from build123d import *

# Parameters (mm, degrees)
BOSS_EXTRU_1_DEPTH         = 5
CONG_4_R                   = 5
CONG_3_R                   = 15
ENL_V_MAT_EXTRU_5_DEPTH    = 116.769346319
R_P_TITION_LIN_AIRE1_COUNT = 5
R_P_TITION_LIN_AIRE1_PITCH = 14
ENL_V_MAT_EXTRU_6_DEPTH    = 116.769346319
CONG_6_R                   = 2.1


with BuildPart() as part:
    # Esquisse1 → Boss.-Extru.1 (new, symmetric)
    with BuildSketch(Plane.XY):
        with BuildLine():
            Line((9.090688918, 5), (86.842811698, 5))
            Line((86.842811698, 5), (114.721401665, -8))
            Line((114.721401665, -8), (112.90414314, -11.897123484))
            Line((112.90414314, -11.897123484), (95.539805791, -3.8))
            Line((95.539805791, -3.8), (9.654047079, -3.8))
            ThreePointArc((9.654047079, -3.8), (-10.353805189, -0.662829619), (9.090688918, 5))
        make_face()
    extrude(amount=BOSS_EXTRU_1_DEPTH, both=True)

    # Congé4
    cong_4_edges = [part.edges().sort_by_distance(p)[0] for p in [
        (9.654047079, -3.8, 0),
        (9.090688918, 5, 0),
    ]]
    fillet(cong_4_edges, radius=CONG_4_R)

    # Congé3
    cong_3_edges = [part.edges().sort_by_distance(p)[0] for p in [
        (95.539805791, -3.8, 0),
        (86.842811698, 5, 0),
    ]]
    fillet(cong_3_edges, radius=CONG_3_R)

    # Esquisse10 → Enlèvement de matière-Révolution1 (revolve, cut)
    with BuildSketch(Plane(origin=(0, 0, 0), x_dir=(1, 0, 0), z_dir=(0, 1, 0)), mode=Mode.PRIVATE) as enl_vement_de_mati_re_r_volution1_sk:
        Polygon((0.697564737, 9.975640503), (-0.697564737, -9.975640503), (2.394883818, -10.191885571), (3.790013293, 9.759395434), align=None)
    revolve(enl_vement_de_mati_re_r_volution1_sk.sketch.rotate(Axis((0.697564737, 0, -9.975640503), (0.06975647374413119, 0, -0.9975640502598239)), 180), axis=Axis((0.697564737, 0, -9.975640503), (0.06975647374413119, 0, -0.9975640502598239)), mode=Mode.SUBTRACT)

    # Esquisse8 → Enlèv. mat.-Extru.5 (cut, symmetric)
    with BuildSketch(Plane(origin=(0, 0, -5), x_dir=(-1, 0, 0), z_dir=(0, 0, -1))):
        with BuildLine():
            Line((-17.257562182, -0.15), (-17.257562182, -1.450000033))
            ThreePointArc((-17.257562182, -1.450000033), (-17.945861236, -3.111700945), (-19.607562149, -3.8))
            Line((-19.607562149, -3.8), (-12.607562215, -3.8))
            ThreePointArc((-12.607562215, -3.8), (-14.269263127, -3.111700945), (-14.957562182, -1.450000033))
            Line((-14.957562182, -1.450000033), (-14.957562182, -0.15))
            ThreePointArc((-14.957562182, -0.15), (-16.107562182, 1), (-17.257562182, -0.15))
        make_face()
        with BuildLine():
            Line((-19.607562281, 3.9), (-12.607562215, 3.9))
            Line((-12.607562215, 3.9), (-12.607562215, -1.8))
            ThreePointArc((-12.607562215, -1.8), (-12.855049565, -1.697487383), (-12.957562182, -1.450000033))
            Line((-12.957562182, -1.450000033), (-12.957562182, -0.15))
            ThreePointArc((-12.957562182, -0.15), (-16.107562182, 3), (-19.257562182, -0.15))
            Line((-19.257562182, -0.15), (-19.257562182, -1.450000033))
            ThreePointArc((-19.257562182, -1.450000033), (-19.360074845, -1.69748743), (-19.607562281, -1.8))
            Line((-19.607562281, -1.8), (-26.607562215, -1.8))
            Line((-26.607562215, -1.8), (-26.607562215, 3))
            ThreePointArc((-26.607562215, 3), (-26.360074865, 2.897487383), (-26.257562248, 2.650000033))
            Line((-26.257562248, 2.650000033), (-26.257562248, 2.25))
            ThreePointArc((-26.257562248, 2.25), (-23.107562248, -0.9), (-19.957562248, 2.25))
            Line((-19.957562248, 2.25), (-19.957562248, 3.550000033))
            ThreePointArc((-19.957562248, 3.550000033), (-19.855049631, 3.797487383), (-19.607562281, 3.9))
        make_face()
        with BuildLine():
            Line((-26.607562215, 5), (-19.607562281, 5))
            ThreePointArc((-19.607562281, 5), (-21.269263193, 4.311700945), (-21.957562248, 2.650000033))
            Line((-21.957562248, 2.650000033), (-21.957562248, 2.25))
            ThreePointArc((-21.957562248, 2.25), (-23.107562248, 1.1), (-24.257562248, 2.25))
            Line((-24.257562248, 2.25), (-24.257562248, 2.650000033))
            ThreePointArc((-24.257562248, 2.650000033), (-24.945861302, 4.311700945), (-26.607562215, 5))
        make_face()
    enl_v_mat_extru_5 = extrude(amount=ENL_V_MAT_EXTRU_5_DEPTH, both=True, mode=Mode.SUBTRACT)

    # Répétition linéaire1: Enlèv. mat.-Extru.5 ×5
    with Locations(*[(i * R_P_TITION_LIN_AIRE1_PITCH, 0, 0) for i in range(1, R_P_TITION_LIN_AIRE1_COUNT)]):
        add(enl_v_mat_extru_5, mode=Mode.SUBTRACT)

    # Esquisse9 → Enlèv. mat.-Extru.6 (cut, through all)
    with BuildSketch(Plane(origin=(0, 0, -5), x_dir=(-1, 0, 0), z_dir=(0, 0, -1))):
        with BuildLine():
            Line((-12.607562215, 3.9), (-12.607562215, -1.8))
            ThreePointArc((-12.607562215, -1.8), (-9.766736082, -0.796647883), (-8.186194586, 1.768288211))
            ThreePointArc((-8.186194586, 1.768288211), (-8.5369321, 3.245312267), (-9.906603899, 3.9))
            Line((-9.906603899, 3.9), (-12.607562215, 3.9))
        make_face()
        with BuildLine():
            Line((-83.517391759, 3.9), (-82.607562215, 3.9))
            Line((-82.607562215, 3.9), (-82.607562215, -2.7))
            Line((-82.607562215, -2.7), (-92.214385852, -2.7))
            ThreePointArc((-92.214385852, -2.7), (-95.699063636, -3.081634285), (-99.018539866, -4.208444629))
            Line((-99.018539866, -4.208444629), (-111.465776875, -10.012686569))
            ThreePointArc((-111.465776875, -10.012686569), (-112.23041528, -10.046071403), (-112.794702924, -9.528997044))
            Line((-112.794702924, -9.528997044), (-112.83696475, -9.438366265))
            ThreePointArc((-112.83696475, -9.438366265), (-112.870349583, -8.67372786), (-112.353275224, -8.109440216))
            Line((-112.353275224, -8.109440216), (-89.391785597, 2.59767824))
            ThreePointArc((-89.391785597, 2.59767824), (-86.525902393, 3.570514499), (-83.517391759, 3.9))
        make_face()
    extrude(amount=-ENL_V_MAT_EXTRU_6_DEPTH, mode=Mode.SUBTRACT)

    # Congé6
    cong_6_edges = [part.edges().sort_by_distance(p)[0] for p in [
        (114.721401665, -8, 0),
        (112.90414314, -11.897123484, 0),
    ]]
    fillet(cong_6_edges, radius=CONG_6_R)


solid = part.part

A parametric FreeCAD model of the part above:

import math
import FreeCAD as App
import Part
import Sketcher
Q = App.Units.Quantity


def edges_at(feature, points):
    """Names of the edges that pass closest to the given points."""
    edges = feature.Shape.Edges
    near = lambda p: min(range(len(edges)), key=lambda i: edges[i].distToShape(Part.Vertex(*p))[0])
    return sorted({f"Edge{near(p) + 1}" for p in points})

doc = App.newDocument("Part")
body = doc.addObject("PartDesign::Body", "Body")

# Sketch on XY plane
sketch1 = body.newObject("Sketcher::SketchObject", "Sketch")
sketch1.AttachmentSupport = (doc.getObject("XY_Plane"), [""])
sketch1.MapMode = "FlatFace"
sketch1.addGeometry([
    Part.LineSegment(App.Vector(86.8, 5, 0), App.Vector(9.1, 5, 0)),  # 0
    Part.ArcOfCircle(Part.Circle(App.Vector(0, 0, 0), App.Vector(0, 0, 1), 10.4), math.radians(29), math.radians(339)),  # 1
    Part.LineSegment(App.Vector(9.7, -3.8, 0), App.Vector(95.5, -3.8, 0)),  # 2
    Part.LineSegment(App.Vector(95.5, -3.8, 0), App.Vector(112.9, -11.9, 0)),  # 3
    Part.LineSegment(App.Vector(112.9, -11.9, 0), App.Vector(114.7, -8, 0)),  # 4
    Part.LineSegment(App.Vector(114.7, -8, 0), App.Vector(86.8, 5, 0)),  # 5
], False)
sketch1.addConstraint([
    Sketcher.Constraint("Coincident", 0, 2, 1, 1),
    Sketcher.Constraint("Coincident", 1, 2, 2, 1),
    Sketcher.Constraint("Coincident", 2, 2, 3, 1),
    Sketcher.Constraint("Coincident", 3, 2, 4, 1),
    Sketcher.Constraint("Coincident", 4, 2, 5, 1),
    Sketcher.Constraint("Coincident", 5, 2, 0, 1),
    Sketcher.Constraint("Horizontal", 0),
    Sketcher.Constraint("Horizontal", 2),
    Sketcher.Constraint("Coincident", 1, 3, -1, 1),
    Sketcher.Constraint("Perpendicular", 3, 4),
    Sketcher.Constraint("Perpendicular", 4, 5),
    Sketcher.Constraint("Angle", 3, Q("-25 deg")),
    Sketcher.Constraint("DistanceY", -1, 1, 0, 2, 5.0),
    Sketcher.Constraint("DistanceY", 4, 2, -1, 1, 8.0),
    Sketcher.Constraint("Radius", 1, 10.375),
    Sketcher.Constraint("Distance", 4, 4.3),
    Sketcher.Constraint("DistanceY", 1, 2, -1, 1, 3.8),
    Sketcher.Constraint("DistanceX", 2, 1, 2, 2, 85.885759),
])
pad1 = body.newObject("PartDesign::Pad", "Pad")
pad1.Profile = sketch1
pad1.Length = 10
pad1.Midplane = True
doc.recompute()

fillet = body.newObject("PartDesign::Fillet", "Fillet")
fillet.Base = (pad1, edges_at(pad1, [(9.654, -3.8, 0), (9.091, 5, 0)]))
fillet.Radius = 5
doc.recompute()

fillet2 = body.newObject("PartDesign::Fillet", "Fillet001")
fillet2.Base = (fillet, edges_at(fillet, [(95.54, -3.8, 0), (86.843, 5, 0)]))
fillet2.Radius = 15

# Sketch on XZ plane
sketch2 = body.newObject("Sketcher::SketchObject", "Sketch001")
sketch2.AttachmentSupport = (doc.getObject("XZ_Plane"), [""])
sketch2.MapMode = "FlatFace"
sketch2.addGeometry([
    Part.LineSegment(App.Vector(0.7, -10, 0), App.Vector(-0.7, 10, 0)),
    Part.LineSegment(App.Vector(-0.7, 10, 0), App.Vector(2.4, 10.2, 0)),
    Part.LineSegment(App.Vector(2.4, 10.2, 0), App.Vector(3.8, -9.8, 0)),
    Part.LineSegment(App.Vector(3.8, -9.8, 0), App.Vector(0.7, -10, 0)),
], False)
sketch2.addGeometry(Part.LineSegment(App.Vector(-0.7, 10, 0), App.Vector(0.7, -10, 0)), True)  # axis
sketch2.addConstraint([
    Sketcher.Constraint("Coincident", 0, 2, 1, 1),
    Sketcher.Constraint("Coincident", 1, 2, 2, 1),
    Sketcher.Constraint("Coincident", 2, 2, 3, 1),
    Sketcher.Constraint("Coincident", 3, 2, 0, 1),
    Sketcher.Constraint("Coincident", 4, 1, 0, 2),
    Sketcher.Constraint("Coincident", 4, 2, 3, 2),
    Sketcher.Constraint("Symmetric", 0, 2, 3, 2, -1, 1),
    Sketcher.Constraint("Perpendicular", 0, 1),
    Sketcher.Constraint("Perpendicular", 1, 2),
    Sketcher.Constraint("Perpendicular", 2, 3),
    Sketcher.Constraint("Angle", 0, Q("94 deg")),
    Sketcher.Constraint("Distance", 0, 20.0),
    Sketcher.Constraint("Distance", 1, 3.1),
])
groove = body.newObject("PartDesign::Groove", "Groove")
groove.Profile = sketch2
groove.ReferenceAxis = (sketch2, ["Axis0"])
groove.Angle = 360

# Sketch on XY plane
sketch3 = body.newObject("Sketcher::SketchObject", "Sketch002")
sketch3.AttachmentSupport = (doc.getObject("XY_Plane"), [""])
sketch3.MapMode = "FlatFace"
sketch3.AttachmentOffset = App.Placement(App.Vector(0, 0, -5), App.Rotation())
sketch3.addGeometry([
    Part.LineSegment(App.Vector(17.26, -0.15, 0), App.Vector(17.26, -1.45, 0)),  # 0
    Part.ArcOfCircle(Part.Circle(App.Vector(19.61, -1.45, 0), App.Vector(0, 0, 1), 2.35), math.radians(180), math.radians(270)),  # 1
    Part.LineSegment(App.Vector(19.61, -3.8, 0), App.Vector(12.61, -3.8, 0)),  # 2
    Part.ArcOfCircle(Part.Circle(App.Vector(12.61, -1.45, 0), App.Vector(0, 0, 1), 2.35), math.radians(-90), math.radians(0)),  # 3
    Part.LineSegment(App.Vector(14.96, -1.45, 0), App.Vector(14.96, -0.15, 0)),  # 4
    Part.ArcOfCircle(Part.Circle(App.Vector(16.11, -0.15, 0), App.Vector(0, 0, 1), 1.15), math.radians(0), math.radians(180)),  # 5
    Part.LineSegment(App.Vector(12.61, 3.9, 0), App.Vector(19.61, 3.9, 0)),  # 6
    Part.ArcOfCircle(Part.Circle(App.Vector(19.61, 3.55, 0), App.Vector(0, 0, 1), 0.35), math.radians(0), math.radians(90)),  # 7
    Part.LineSegment(App.Vector(19.96, 3.55, 0), App.Vector(19.96, 2.25, 0)),  # 8
    Part.ArcOfCircle(Part.Circle(App.Vector(23.11, 2.25, 0), App.Vector(0, 0, 1), 3.15), math.radians(180), math.radians(360)),  # 9
    Part.LineSegment(App.Vector(26.26, 2.25, 0), App.Vector(26.26, 2.65, 0)),  # 10
    Part.ArcOfCircle(Part.Circle(App.Vector(26.61, 2.65, 0), App.Vector(0, 0, 1), 0.35), math.radians(90), math.radians(180)),  # 11
    Part.LineSegment(App.Vector(26.61, 3, 0), App.Vector(26.61, -1.8, 0)),  # 12
    Part.LineSegment(App.Vector(26.61, -1.8, 0), App.Vector(19.61, -1.8, 0)),  # 13
    Part.ArcOfCircle(Part.Circle(App.Vector(19.61, -1.45, 0), App.Vector(0, 0, 1), 0.35), math.radians(180), math.radians(270)),  # 14
    Part.LineSegment(App.Vector(19.26, -1.45, 0), App.Vector(19.26, -0.15, 0)),  # 15
    Part.ArcOfCircle(Part.Circle(App.Vector(16.11, -0.15, 0), App.Vector(0, 0, 1), 3.15), math.radians(0), math.radians(180)),  # 16
    Part.LineSegment(App.Vector(12.96, -0.15, 0), App.Vector(12.96, -1.45, 0)),  # 17
    Part.ArcOfCircle(Part.Circle(App.Vector(12.61, -1.45, 0), App.Vector(0, 0, 1), 0.35), math.radians(-90), math.radians(0)),  # 18
    Part.LineSegment(App.Vector(12.61, -1.8, 0), App.Vector(12.61, 3.9, 0)),  # 19
    Part.LineSegment(App.Vector(19.61, 5, 0), App.Vector(26.61, 5, 0)),  # 20
    Part.ArcOfCircle(Part.Circle(App.Vector(26.61, 2.65, 0), App.Vector(0, 0, 1), 2.35), math.radians(90), math.radians(180)),  # 21
    Part.LineSegment(App.Vector(24.26, 2.65, 0), App.Vector(24.26, 2.25, 0)),  # 22
    Part.ArcOfCircle(Part.Circle(App.Vector(23.11, 2.25, 0), App.Vector(0, 0, 1), 1.15), math.radians(180), math.radians(360)),  # 23
    Part.LineSegment(App.Vector(21.96, 2.25, 0), App.Vector(21.96, 2.65, 0)),  # 24
    Part.ArcOfCircle(Part.Circle(App.Vector(19.61, 2.65, 0), App.Vector(0, 0, 1), 2.35), math.radians(0), math.radians(90)),  # 25
], False)
sketch3.addConstraint([
    Sketcher.Constraint("Tangent", 0, 2, 1, 1),
    Sketcher.Constraint("Tangent", 1, 2, 2, 1),
    Sketcher.Constraint("Tangent", 2, 2, 3, 1),
    Sketcher.Constraint("Tangent", 3, 2, 4, 1),
    Sketcher.Constraint("Tangent", 4, 2, 5, 2),
    Sketcher.Constraint("Tangent", 5, 1, 0, 1),
    Sketcher.Constraint("Tangent", 6, 2, 7, 2),
    Sketcher.Constraint("Tangent", 7, 1, 8, 1),
    Sketcher.Constraint("Tangent", 8, 2, 9, 1),
    Sketcher.Constraint("Tangent", 9, 2, 10, 1),
    Sketcher.Constraint("Tangent", 10, 2, 11, 2),
    Sketcher.Constraint("Coincident", 11, 1, 12, 1),
    Sketcher.Constraint("Coincident", 12, 2, 13, 1),
    Sketcher.Constraint("Tangent", 13, 2, 14, 2),
    Sketcher.Constraint("Tangent", 14, 1, 15, 1),
    Sketcher.Constraint("Tangent", 15, 2, 16, 1),
    Sketcher.Constraint("Tangent", 16, 2, 17, 1),
    Sketcher.Constraint("Tangent", 17, 2, 18, 2),
    Sketcher.Constraint("Coincident", 18, 1, 19, 1),
    Sketcher.Constraint("Coincident", 19, 2, 6, 1),
    Sketcher.Constraint("Tangent", 20, 2, 21, 1),
    Sketcher.Constraint("Tangent", 21, 2, 22, 1),
    Sketcher.Constraint("Tangent", 22, 2, 23, 2),
    Sketcher.Constraint("Tangent", 23, 1, 24, 1),
    Sketcher.Constraint("Tangent", 24, 2, 25, 1),
    Sketcher.Constraint("Tangent", 25, 2, 20, 1),
    Sketcher.Constraint("Vertical", 0),
    Sketcher.Constraint("Horizontal", 2),
    Sketcher.Constraint("Vertical", 4),
    Sketcher.Constraint("Horizontal", 6),
    Sketcher.Constraint("Vertical", 8),
    Sketcher.Constraint("Vertical", 10),
    Sketcher.Constraint("Vertical", 12),
    Sketcher.Constraint("Horizontal", 13),
    Sketcher.Constraint("Vertical", 15),
    Sketcher.Constraint("Vertical", 17),
    Sketcher.Constraint("Vertical", 19),
    Sketcher.Constraint("Horizontal", 20),
    Sketcher.Constraint("Vertical", 22),
    Sketcher.Constraint("Vertical", 24),
    Sketcher.Constraint("Coincident", 14, 3, 1, 3),
    Sketcher.Constraint("Coincident", 16, 3, 5, 3),
    Sketcher.Constraint("Coincident", 18, 3, 3, 3),
    Sketcher.Constraint("Coincident", 21, 3, 11, 3),
    Sketcher.Constraint("Coincident", 23, 3, 9, 3),
    Sketcher.Constraint("Equal", 1, 3),
    Sketcher.Constraint("Equal", 7, 11),
    Sketcher.Constraint("Equal", 11, 14),
    Sketcher.Constraint("Equal", 9, 16),
    Sketcher.Constraint("Equal", 3, 21),
    Sketcher.Constraint("Equal", 21, 25),
    Sketcher.Constraint("Vertical", 1, 3, 7, 3),
    Sketcher.Constraint("Vertical", 21, 3, 11, 1),
    Sketcher.Constraint("Vertical", 2, 2, 18, 1),
    Sketcher.Constraint("Equal", 4, 8),
    Sketcher.Constraint("DistanceX", 2, 2, 2, 1, 7.0),
    Sketcher.Constraint("Radius", 1, 2.35),
    Sketcher.Constraint("Radius", 7, 0.35),
    Sketcher.Constraint("DistanceY", 0, 2, 0, 1, 1.3),
    Sketcher.Constraint("DistanceY", 10, 1, 10, 2, 0.4),
    Sketcher.Constraint("DistanceY", 12, 2, 12, 1, 4.8),
    Sketcher.Constraint("DistanceY", -1, 1, 11, 1, 3.0),
    Sketcher.Constraint("DistanceX", -1, 1, 1, 3, 19.607562),
])
pocket1 = body.newObject("PartDesign::Pocket", "Pocket")
pocket1.Profile = sketch3
pocket1.Length = 233.538693
pocket1.Midplane = True
doc.recompute()

linearpattern = body.newObject("PartDesign::LinearPattern", "LinearPattern")
linearpattern.Originals = [pocket1]
linearpattern.Direction = (doc.getObject("X_Axis"), [""])
linearpattern.Mode = "offset"
linearpattern.Offset = 14
linearpattern.Occurrences = 5
body.Tip = linearpattern

# Sketch on XY plane
sketch4 = body.newObject("Sketcher::SketchObject", "Sketch003")
sketch4.AttachmentSupport = (doc.getObject("XY_Plane"), [""])
sketch4.MapMode = "FlatFace"
sketch4.AttachmentOffset = App.Placement(App.Vector(0, 0, -5), App.Rotation())
sketch4.addGeometry([
    Part.LineSegment(App.Vector(12.61, 3.9, 0), App.Vector(12.61, -1.8, 0)),  # 0
    Part.ArcOfCircle(Part.Circle(App.Vector(12.61, 2.72, 0), App.Vector(0, 0, 1), 4.52), math.radians(-168), math.radians(-90)),  # 1
    Part.ArcOfCircle(Part.Circle(App.Vector(9.91, 2.14, 0), App.Vector(0, 0, 1), 1.76), math.radians(90), math.radians(192)),  # 2
    Part.LineSegment(App.Vector(9.91, 3.9, 0), App.Vector(12.61, 3.9, 0)),  # 3
    Part.LineSegment(App.Vector(82.61, 3.9, 0), App.Vector(83.52, 3.9, 0)),  # 4
    Part.ArcOfCircle(Part.Circle(App.Vector(83.52, -10, 0), App.Vector(0, 0, 1), 13.9), math.radians(65), math.radians(90)),  # 5
    Part.LineSegment(App.Vector(89.39, 2.6, 0), App.Vector(112.35, -8.11, 0)),  # 6
    Part.ArcOfCircle(Part.Circle(App.Vector(111.93, -9.02, 0), App.Vector(0, 0, 1), 1), math.radians(-25), math.radians(65)),  # 7
    Part.LineSegment(App.Vector(112.84, -9.44, 0), App.Vector(112.79, -9.53, 0)),  # 8
    Part.ArcOfCircle(Part.Circle(App.Vector(111.89, -9.11, 0), App.Vector(0, 0, 1), 1), math.radians(-115), math.radians(-25)),  # 9
    Part.LineSegment(App.Vector(111.47, -10.01, 0), App.Vector(99.02, -4.21, 0)),  # 10
    Part.ArcOfCircle(Part.Circle(App.Vector(92.21, -18.8, 0), App.Vector(0, 0, 1), 16.1), math.radians(65), math.radians(90)),  # 11
    Part.LineSegment(App.Vector(92.21, -2.7, 0), App.Vector(82.61, -2.7, 0)),  # 12
    Part.LineSegment(App.Vector(82.61, -2.7, 0), App.Vector(82.61, 3.9, 0)),  # 13
], False)
sketch4.addConstraint([
    Sketcher.Constraint("Coincident", 0, 2, 1, 2),
    Sketcher.Constraint("Tangent", 1, 1, 2, 2),
    Sketcher.Constraint("Tangent", 2, 1, 3, 1),
    Sketcher.Constraint("Coincident", 3, 2, 0, 1),
    Sketcher.Constraint("Tangent", 4, 2, 5, 2),
    Sketcher.Constraint("Tangent", 5, 1, 6, 1),
    Sketcher.Constraint("Tangent", 6, 2, 7, 2),
    Sketcher.Constraint("Tangent", 7, 1, 8, 1),
    Sketcher.Constraint("Tangent", 8, 2, 9, 2),
    Sketcher.Constraint("Tangent", 9, 1, 10, 1),
    Sketcher.Constraint("Tangent", 10, 2, 11, 1),
    Sketcher.Constraint("Tangent", 11, 2, 12, 1),
    Sketcher.Constraint("Coincident", 12, 2, 13, 1),
    Sketcher.Constraint("Coincident", 13, 2, 4, 1),
    Sketcher.Constraint("Vertical", 0),
    Sketcher.Constraint("Horizontal", 3),
    Sketcher.Constraint("Horizontal", 4),
    Sketcher.Constraint("Horizontal", 12),
    Sketcher.Constraint("Vertical", 13),
    Sketcher.Constraint("Equal", 7, 9),
    Sketcher.Constraint("Perpendicular", 6, 8),
    Sketcher.Constraint("Perpendicular", 8, 10),
    Sketcher.Constraint("Horizontal", 3, 2, 4, 2),
    Sketcher.Constraint("Vertical", 1, 3, 0, 2),
    Sketcher.Constraint("Radius", 7, 1.0),
    Sketcher.Constraint("Radius", 5, 13.9),
    Sketcher.Constraint("Radius", 11, 16.1),
    Sketcher.Constraint("Angle", 6, Q("-25 deg")),
    Sketcher.Constraint("DistanceY", 0, 2, 0, 1, 5.7),
    Sketcher.Constraint("DistanceY", 13, 1, 13, 2, 6.6),
    Sketcher.Constraint("DistanceY", 5, 3, -1, 1, 10.0),
    Sketcher.Constraint("Distance", 8, 0.1),
    Sketcher.Constraint("Radius", 1, 4.523342),
    Sketcher.Constraint("Radius", 2, 1.760089),
    Sketcher.Constraint("Distance", 6, 25.335201),
    Sketcher.Constraint("DistanceX", 4, 1, 4, 2, 0.90983),
    Sketcher.Constraint("DistanceX", -1, 1, 5, 3, 83.517392),
    Sketcher.Constraint("DistanceX", 1, 3, 5, 3, 70.90983),
])
pocket2 = body.newObject("PartDesign::Pocket", "Pocket001")
pocket2.Profile = sketch4
pocket2.Type = "ThroughAll"
pocket2.Reversed = True
doc.recompute()

fillet3 = body.newObject("PartDesign::Fillet", "Fillet002")
fillet3.Base = (pocket2, edges_at(pocket2, [(114.721, -8, 0), (112.904, -11.897, 0)]))
fillet3.Radius = 2.1

doc.recompute()
